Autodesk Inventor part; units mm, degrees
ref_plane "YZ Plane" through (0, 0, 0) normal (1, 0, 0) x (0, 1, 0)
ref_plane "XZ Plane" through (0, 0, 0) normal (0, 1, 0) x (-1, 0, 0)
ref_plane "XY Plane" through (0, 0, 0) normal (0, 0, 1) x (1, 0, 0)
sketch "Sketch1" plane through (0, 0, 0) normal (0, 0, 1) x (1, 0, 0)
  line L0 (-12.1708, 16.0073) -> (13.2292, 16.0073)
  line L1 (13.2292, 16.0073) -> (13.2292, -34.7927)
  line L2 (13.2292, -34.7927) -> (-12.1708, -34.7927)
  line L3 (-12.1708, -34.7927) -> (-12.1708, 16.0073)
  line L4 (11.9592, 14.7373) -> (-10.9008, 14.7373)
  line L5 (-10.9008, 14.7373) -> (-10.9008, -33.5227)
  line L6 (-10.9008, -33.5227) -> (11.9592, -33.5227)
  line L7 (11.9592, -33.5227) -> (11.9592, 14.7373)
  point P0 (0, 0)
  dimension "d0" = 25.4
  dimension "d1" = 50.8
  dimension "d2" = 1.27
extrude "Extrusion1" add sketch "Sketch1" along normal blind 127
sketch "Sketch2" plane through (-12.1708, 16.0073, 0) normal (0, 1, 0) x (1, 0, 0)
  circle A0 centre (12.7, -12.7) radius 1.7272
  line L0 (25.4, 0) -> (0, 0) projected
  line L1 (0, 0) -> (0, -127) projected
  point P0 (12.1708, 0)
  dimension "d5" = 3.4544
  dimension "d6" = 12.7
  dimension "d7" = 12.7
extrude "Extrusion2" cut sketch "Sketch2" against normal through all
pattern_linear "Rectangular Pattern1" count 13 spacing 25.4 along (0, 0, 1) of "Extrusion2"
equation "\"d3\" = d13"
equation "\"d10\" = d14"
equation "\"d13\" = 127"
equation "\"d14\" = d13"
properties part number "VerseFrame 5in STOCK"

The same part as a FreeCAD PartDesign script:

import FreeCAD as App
import Part
import Sketcher
Q = App.Units.Quantity


def add_polygon(sketch, points):
    """Adds a closed chain of lines whose ends are joined by coincident constraints."""
    first, n = sketch.GeometryCount, len(points)
    for a, b in zip(points, points[1:] + points[:1]):
        sketch.addGeometry(Part.LineSegment(App.Vector(*a, 0), App.Vector(*b, 0)), False)
    for i in range(n):
        sketch.addConstraint(Sketcher.Constraint("Coincident", first + i, 2, first + (i + 1) % n, 1))

doc = App.newDocument("Part")
body = doc.addObject("PartDesign::Body", "Body")

# Sketch on XY plane
sketch1 = body.newObject("Sketcher::SketchObject", "Sketch")
sketch1.AttachmentSupport = (doc.getObject("XY_Plane"), [""])
sketch1.MapMode = "FlatFace"
add_polygon(sketch1, [(13.2292, 16.0073), (-12.1708, 16.0073), (-12.1708, -34.7927), (13.2292, -34.7927)])  # lines 0-3
add_polygon(sketch1, [(-10.9008, 14.7373), (11.9592, 14.7373), (11.9592, -33.5227), (-10.9008, -33.5227)])  # lines 4-7
sketch1.addConstraint([
    Sketcher.Constraint("Horizontal", 0),
    Sketcher.Constraint("Vertical", 1),
    Sketcher.Constraint("Horizontal", 2),
    Sketcher.Constraint("Vertical", 3),
    Sketcher.Constraint("Horizontal", 4),
    Sketcher.Constraint("Vertical", 5),
    Sketcher.Constraint("Horizontal", 6),
    Sketcher.Constraint("Vertical", 7),
    Sketcher.Constraint("DistanceX", 0, 2, 0, 1, Q("1 in")),
    Sketcher.Constraint("DistanceY", 1, 2, 1, 1, Q("2 in")),
    Sketcher.Constraint("DistanceX", 4, 2, 3, 2, Q("0.05 in")),
    Sketcher.Constraint("DistanceY", 4, 2, 3, 2, Q("0.05 in")),
    Sketcher.Constraint("DistanceY", 2, 2, 5, 2, Q("0.05 in")),
    Sketcher.Constraint("DistanceX", 1, 2, 6, 2, Q("0.05 in")),
    Sketcher.Constraint("DistanceY", -1, 1, 0, 2, Q("0.6302 in")),
    Sketcher.Constraint("DistanceX", 0, 2, -1, 1, 12.1708),
])
pad1 = body.newObject("PartDesign::Pad", "Pad")
pad1.Profile = sketch1
pad1.Length = Q("5 in")

# Sketch on XZ plane
sketch2 = body.newObject("Sketcher::SketchObject", "Sketch001")
sketch2.AttachmentSupport = (doc.getObject("XZ_Plane"), [""])
sketch2.MapMode = "FlatFace"
sketch2.AttachmentOffset = App.Placement(App.Vector(0, 0, -0.6302087 * 25.4), App.Rotation())
sketch2.addGeometry(Part.Circle(App.Vector(0.5292, 12.7, 0), App.Vector(0, 0, 1), 1.7272), False)
sketch2.addConstraint([
    Sketcher.Constraint("Diameter", 0, Q("0.136 in")),
    Sketcher.Constraint("DistanceY", -1, 1, 0, 3, Q("0.5 in")),
    Sketcher.Constraint("DistanceX", -1, 1, 0, 3, 0.5292),
])
pocket1 = body.newObject("PartDesign::Pocket", "Pocket")
pocket1.Profile = sketch2
pocket1.Type = "ThroughAll"
pocket1.Reversed = True
doc.recompute()

linearpattern = body.newObject("PartDesign::LinearPattern", "LinearPattern")
linearpattern.Originals = [pocket1]
linearpattern.Direction = (doc.getObject("Z_Axis"), [""])
linearpattern.Mode = "offset"
linearpattern.Offset = Q("1 in")
linearpattern.Occurrences = 13
body.Tip = linearpattern

doc.recompute()
